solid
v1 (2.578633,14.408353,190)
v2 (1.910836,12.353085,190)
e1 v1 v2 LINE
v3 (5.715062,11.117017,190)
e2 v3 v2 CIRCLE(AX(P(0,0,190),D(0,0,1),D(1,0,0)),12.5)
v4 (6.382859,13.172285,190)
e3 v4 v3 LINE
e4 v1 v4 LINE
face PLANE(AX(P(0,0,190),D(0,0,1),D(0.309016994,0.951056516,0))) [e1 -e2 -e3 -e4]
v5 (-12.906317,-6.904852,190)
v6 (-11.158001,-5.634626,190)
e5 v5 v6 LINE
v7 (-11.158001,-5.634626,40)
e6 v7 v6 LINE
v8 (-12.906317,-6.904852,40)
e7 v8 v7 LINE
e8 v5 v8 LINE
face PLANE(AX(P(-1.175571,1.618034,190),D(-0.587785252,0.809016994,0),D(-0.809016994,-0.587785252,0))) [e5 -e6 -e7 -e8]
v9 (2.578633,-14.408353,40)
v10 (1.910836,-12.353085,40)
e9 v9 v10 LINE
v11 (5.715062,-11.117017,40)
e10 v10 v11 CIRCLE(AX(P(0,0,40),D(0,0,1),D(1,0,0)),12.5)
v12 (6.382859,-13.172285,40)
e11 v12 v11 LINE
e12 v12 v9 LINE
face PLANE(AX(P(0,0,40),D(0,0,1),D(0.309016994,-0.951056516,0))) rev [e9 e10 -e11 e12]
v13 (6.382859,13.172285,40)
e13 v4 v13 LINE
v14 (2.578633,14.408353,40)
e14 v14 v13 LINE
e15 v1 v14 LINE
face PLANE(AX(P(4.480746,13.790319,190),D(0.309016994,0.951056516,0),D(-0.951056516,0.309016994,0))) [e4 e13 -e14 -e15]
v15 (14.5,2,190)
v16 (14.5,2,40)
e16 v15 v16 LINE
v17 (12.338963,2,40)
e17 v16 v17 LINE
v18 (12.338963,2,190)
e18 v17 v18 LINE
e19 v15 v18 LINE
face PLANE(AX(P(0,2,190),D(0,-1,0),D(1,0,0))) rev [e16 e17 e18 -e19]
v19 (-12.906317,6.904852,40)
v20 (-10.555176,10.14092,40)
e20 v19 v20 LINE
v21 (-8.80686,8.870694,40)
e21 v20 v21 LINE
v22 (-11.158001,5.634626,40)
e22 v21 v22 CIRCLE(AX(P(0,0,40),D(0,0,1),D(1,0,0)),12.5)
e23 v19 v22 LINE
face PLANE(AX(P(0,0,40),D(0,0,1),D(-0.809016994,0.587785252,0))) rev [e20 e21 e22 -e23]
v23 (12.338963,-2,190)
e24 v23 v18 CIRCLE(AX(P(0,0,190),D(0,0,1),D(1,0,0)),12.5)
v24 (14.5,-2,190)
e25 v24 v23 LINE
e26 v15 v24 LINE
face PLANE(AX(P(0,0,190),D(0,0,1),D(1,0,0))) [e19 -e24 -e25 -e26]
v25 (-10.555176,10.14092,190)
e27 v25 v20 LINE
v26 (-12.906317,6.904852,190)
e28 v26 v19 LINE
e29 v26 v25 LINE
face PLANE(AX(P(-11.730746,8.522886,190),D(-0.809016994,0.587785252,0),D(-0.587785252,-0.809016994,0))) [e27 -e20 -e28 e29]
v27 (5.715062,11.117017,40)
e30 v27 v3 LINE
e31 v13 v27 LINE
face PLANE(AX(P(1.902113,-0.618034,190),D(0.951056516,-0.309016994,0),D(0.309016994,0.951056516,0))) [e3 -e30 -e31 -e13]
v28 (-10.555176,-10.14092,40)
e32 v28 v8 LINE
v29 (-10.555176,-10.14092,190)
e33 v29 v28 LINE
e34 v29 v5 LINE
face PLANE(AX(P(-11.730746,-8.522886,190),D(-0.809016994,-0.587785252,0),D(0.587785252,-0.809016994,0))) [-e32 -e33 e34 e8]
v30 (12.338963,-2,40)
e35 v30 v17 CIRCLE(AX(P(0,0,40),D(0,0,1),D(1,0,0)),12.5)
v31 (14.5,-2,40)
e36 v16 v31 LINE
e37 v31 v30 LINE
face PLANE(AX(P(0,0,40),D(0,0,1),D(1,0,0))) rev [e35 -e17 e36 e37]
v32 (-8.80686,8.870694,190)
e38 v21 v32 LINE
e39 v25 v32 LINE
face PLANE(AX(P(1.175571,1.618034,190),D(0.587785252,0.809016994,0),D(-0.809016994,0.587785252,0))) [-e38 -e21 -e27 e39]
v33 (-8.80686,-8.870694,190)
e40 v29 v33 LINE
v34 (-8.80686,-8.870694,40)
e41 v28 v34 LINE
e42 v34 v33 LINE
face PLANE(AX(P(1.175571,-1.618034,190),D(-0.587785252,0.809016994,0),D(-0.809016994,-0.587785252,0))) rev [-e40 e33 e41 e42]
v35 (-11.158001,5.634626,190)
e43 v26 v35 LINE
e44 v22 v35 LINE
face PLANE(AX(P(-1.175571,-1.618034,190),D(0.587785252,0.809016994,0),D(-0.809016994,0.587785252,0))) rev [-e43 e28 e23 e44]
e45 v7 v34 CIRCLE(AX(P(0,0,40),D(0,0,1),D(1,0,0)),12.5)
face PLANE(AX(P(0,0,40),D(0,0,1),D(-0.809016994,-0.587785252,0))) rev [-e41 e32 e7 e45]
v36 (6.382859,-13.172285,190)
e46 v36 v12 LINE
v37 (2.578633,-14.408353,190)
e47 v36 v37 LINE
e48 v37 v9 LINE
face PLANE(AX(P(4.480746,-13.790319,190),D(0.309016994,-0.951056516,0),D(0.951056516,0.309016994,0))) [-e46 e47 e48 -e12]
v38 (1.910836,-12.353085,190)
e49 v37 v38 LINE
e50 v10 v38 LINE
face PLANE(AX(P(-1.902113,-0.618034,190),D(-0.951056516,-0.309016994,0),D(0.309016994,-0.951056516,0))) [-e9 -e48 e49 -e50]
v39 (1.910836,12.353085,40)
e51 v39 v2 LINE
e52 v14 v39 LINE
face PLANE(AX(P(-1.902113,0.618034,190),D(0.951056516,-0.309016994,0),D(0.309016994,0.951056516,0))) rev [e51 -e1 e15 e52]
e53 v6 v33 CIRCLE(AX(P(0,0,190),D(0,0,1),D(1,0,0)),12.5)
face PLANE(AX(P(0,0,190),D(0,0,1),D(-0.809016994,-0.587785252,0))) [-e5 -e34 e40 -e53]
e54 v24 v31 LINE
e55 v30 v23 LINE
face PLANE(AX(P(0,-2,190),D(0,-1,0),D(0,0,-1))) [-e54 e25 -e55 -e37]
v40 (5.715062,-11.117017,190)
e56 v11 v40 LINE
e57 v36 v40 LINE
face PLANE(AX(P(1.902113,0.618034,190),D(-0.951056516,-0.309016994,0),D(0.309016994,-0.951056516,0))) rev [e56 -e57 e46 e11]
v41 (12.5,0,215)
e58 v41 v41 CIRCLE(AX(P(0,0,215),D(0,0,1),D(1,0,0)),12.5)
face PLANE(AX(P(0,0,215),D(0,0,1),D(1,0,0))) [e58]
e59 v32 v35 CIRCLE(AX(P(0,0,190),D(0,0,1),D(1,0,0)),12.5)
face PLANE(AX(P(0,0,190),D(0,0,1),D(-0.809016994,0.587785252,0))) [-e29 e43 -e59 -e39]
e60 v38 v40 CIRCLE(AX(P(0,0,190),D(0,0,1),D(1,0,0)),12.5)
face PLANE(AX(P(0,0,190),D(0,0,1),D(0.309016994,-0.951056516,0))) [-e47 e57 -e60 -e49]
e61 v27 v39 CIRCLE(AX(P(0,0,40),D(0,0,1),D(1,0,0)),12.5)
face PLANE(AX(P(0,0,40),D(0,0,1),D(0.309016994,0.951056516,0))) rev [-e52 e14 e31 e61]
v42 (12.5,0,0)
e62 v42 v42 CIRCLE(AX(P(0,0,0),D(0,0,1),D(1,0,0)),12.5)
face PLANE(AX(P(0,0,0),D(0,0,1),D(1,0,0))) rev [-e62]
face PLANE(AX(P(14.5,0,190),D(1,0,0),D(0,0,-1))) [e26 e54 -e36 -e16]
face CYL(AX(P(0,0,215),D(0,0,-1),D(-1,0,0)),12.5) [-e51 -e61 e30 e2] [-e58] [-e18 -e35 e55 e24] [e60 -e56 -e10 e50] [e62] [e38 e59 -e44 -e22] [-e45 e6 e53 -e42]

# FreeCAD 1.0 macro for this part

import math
import FreeCAD as App
import Part
import Sketcher

V = App.Vector
Q = App.Units.Quantity

doc = App.newDocument("Part")
body = doc.addObject("PartDesign::Body", "Body")

# Sketch on XY plane
sketch1 = body.newObject("Sketcher::SketchObject", "Sketch")
sketch1.AttachmentSupport = (doc.getObject("XY_Plane"), [""])
sketch1.MapMode = "FlatFace"
sketch1.addGeometry(Part.Circle(V(0, 0, 0), V(0, 0, 1), 12), False)
sketch1.addConstraint(Sketcher.Constraint("Coincident", 0, 3, -1, 1))
sketch1.addConstraint(Sketcher.Constraint("Diameter", 0, Q("25 mm")))
pad1 = body.newObject("PartDesign::Pad", "Pad")
pad1.Profile = sketch1
pad1.Length = 215

# Sketch on XY plane
sketch2 = body.newObject("Sketcher::SketchObject", "Sketch001")
sketch2.AttachmentSupport = (doc.getObject("XY_Plane"), [""])
sketch2.MapMode = "FlatFace"
sketch2.AttachmentOffset = App.Placement(V(0, 0, 40), App.Rotation())
sketch2.addGeometry(Part.LineSegment(V(14.5, -2, 0), V(14.5, 2, 0)), False)
sketch2.addGeometry(Part.LineSegment(V(14.5, 2, 0), V(12.3, 2, 0)), False)
sketch2.addGeometry(Part.ArcOfCircle(Part.Circle(V(0, 0, 0), V(0, 0, 1), 12.5), math.radians(0), math.radians(9.21)), False)
sketch2.addGeometry(Part.ArcOfCircle(Part.Circle(V(0, 0, 0), V(0, 0, 1), 12.5), math.radians(-9.21), math.radians(0)), False)
sketch2.addGeometry(Part.LineSegment(V(12.3, -2, 0), V(14.5, -2, 0)), False)
sketch2.addConstraint(Sketcher.Constraint("Coincident", 0, 2, 1, 1))
sketch2.addConstraint(Sketcher.Constraint("Coincident", 1, 2, 2, 2))
sketch2.addConstraint(Sketcher.Constraint("Tangent", 2, 1, 3, 2))
sketch2.addConstraint(Sketcher.Constraint("Coincident", 3, 1, 4, 1))
sketch2.addConstraint(Sketcher.Constraint("Coincident", 4, 2, 0, 1))
sketch2.addConstraint(Sketcher.Constraint("Vertical", 0))
sketch2.addConstraint(Sketcher.Constraint("Horizontal", 1))
sketch2.addConstraint(Sketcher.Constraint("Horizontal", 4))
sketch2.addConstraint(Sketcher.Constraint("Coincident", 2, 3, -1, 1))
sketch2.addConstraint(Sketcher.Constraint("Equal", 2, 3))
sketch2.addConstraint(Sketcher.Constraint("PointOnObject", 2, 1, -1))
sketch2.addConstraint(Sketcher.Constraint("Vertical", 1, 2, 3, 1))
sketch2.addConstraint(Sketcher.Constraint("Radius", 2, Q("12.5 mm")))
sketch2.addConstraint(Sketcher.Constraint("DistanceY", 0, 1, 0, 2, Q("4 mm")))
sketch2.addConstraint(Sketcher.Constraint("DistanceX", 2, 1, 0, 2, Q("2 mm")))
pad2 = body.newObject("PartDesign::Pad", "Pad001")
pad2.Profile = sketch2
pad2.Length = 150
doc.recompute()

polarpattern = body.newObject("PartDesign::PolarPattern", "PolarPattern")
polarpattern.Originals = [pad2]
polarpattern.Axis = (doc.getObject("Z_Axis"), [""])
polarpattern.Angle = 360
polarpattern.Occurrences = 5
body.Tip = polarpattern

doc.recompute()
